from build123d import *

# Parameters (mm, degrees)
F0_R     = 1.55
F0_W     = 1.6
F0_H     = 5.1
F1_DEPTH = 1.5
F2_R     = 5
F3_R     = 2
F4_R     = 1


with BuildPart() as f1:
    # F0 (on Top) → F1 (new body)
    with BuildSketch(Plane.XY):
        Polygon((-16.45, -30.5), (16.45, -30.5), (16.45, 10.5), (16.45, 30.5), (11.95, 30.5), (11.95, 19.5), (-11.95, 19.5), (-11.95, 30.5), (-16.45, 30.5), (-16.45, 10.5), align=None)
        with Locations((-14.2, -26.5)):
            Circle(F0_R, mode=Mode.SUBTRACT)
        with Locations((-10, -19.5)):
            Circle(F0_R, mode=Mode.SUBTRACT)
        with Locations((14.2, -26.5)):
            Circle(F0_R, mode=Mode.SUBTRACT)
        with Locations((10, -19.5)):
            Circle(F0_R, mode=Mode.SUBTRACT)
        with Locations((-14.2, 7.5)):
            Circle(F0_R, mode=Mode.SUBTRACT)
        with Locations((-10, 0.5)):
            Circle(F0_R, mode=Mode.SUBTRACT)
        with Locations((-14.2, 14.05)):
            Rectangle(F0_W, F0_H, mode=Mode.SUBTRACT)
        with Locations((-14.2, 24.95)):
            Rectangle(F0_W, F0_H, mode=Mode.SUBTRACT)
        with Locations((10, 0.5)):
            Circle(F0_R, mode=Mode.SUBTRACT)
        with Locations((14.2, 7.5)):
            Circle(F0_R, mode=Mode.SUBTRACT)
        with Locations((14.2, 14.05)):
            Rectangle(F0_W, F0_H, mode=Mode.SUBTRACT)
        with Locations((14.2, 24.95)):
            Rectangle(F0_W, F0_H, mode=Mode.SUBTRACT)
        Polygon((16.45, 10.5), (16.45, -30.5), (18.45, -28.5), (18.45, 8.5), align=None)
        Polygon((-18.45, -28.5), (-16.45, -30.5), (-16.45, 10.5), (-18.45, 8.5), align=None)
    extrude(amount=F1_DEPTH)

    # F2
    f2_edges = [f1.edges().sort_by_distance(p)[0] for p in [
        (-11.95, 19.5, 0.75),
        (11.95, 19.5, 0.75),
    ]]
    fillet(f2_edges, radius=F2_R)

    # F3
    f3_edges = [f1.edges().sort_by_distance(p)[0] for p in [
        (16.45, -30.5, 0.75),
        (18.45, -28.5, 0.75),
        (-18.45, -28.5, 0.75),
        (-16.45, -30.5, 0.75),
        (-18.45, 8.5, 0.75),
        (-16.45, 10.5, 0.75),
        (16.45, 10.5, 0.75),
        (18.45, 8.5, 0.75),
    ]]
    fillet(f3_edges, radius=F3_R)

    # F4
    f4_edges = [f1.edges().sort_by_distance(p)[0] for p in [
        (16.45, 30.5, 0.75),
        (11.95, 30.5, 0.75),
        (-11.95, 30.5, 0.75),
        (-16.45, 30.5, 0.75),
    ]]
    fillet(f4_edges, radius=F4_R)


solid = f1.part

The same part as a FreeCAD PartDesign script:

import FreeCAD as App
import Part
import Sketcher


def edges_at(feature, points):
    """Names of the edges that pass closest to the given points."""
    edges = feature.Shape.Edges
    near = lambda p: min(range(len(edges)), key=lambda i: edges[i].distToShape(Part.Vertex(*p))[0])
    return sorted({f"Edge{near(p) + 1}" for p in points})

doc = App.newDocument("Part")
body = doc.addObject("PartDesign::Body", "Body")

# Sketch on XY plane
sketch1 = body.newObject("Sketcher::SketchObject", "Sketch")
sketch1.AttachmentSupport = (doc.getObject("XY_Plane"), [""])
sketch1.MapMode = "FlatFace"
sketch1.addGeometry(Part.LineSegment(App.Vector(-16.4, -30.5, 0), App.Vector(16.4, -30.5, 0)), False)
sketch1.addGeometry(Part.LineSegment(App.Vector(16.4, -30.5, 0), App.Vector(18.4, -28.5, 0)), False)
sketch1.addGeometry(Part.LineSegment(App.Vector(18.4, -28.5, 0), App.Vector(18.4, 8.5, 0)), False)
sketch1.addGeometry(Part.LineSegment(App.Vector(18.4, 8.5, 0), App.Vector(16.4, 10.5, 0)), False)
sketch1.addGeometry(Part.LineSegment(App.Vector(16.4, 10.5, 0), App.Vector(16.4, 30.5, 0)), False)
sketch1.addGeometry(Part.LineSegment(App.Vector(16.4, 30.5, 0), App.Vector(11.9, 30.5, 0)), False)
sketch1.addGeometry(Part.LineSegment(App.Vector(11.9, 30.5, 0), App.Vector(11.9, 19.5, 0)), False)
sketch1.addGeometry(Part.LineSegment(App.Vector(11.9, 19.5, 0), App.Vector(-11.9, 19.5, 0)), False)
sketch1.addGeometry(Part.LineSegment(App.Vector(-11.9, 19.5, 0), App.Vector(-11.9, 30.5, 0)), False)
sketch1.addGeometry(Part.LineSegment(App.Vector(-11.9, 30.5, 0), App.Vector(-16.4, 30.5, 0)), False)
sketch1.addGeometry(Part.LineSegment(App.Vector(-16.4, 30.5, 0), App.Vector(-16.4, 10.5, 0)), False)
sketch1.addGeometry(Part.LineSegment(App.Vector(-16.4, 10.5, 0), App.Vector(-18.4, 8.5, 0)), False)
sketch1.addGeometry(Part.LineSegment(App.Vector(-18.4, 8.5, 0), App.Vector(-18.4, -28.5, 0)), False)
sketch1.addGeometry(Part.LineSegment(App.Vector(-18.4, -28.5, 0), App.Vector(-16.4, -30.5, 0)), False)
sketch1.addGeometry(Part.Circle(App.Vector(-14.2, -26.5, 0), App.Vector(0, 0, 1), 1.6), False)
sketch1.addGeometry(Part.Circle(App.Vector(-10, -19.5, 0), App.Vector(0, 0, 1), 1.6), False)
sketch1.addGeometry(Part.Circle(App.Vector(14.2, -26.5, 0), App.Vector(0, 0, 1), 1.6), False)
sketch1.addGeometry(Part.Circle(App.Vector(10, -19.5, 0), App.Vector(0, 0, 1), 1.6), False)
sketch1.addGeometry(Part.Circle(App.Vector(-10, 0.5, 0), App.Vector(0, 0, 1), 1.6), False)
sketch1.addGeometry(Part.Circle(App.Vector(-14.2, 7.5, 0), App.Vector(0, 0, 1), 1.6), False)
sketch1.addGeometry(Part.LineSegment(App.Vector(-13.4, 11.5, 0), App.Vector(-15, 11.5, 0)), False)
sketch1.addGeometry(Part.LineSegment(App.Vector(-15, 11.5, 0), App.Vector(-15, 16.6, 0)), False)
sketch1.addGeometry(Part.LineSegment(App.Vector(-15, 16.6, 0), App.Vector(-13.4, 16.6, 0)), False)
sketch1.addGeometry(Part.LineSegment(App.Vector(-13.4, 16.6, 0), App.Vector(-13.4, 11.5, 0)), False)
sketch1.addGeometry(Part.LineSegment(App.Vector(-13.4, 22.4, 0), App.Vector(-15, 22.4, 0)), False)
sketch1.addGeometry(Part.LineSegment(App.Vector(-15, 22.4, 0), App.Vector(-15, 27.5, 0)), False)
sketch1.addGeometry(Part.LineSegment(App.Vector(-15, 27.5, 0), App.Vector(-13.4, 27.5, 0)), False)
sketch1.addGeometry(Part.LineSegment(App.Vector(-13.4, 27.5, 0), App.Vector(-13.4, 22.4, 0)), False)
sketch1.addGeometry(Part.Circle(App.Vector(10, 0.5, 0), App.Vector(0, 0, 1), 1.6), False)
sketch1.addGeometry(Part.Circle(App.Vector(14.2, 7.5, 0), App.Vector(0, 0, 1), 1.6), False)
sketch1.addGeometry(Part.LineSegment(App.Vector(15, 11.5, 0), App.Vector(13.4, 11.5, 0)), False)
sketch1.addGeometry(Part.LineSegment(App.Vector(13.4, 11.5, 0), App.Vector(13.4, 16.6, 0)), False)
sketch1.addGeometry(Part.LineSegment(App.Vector(13.4, 16.6, 0), App.Vector(15, 16.6, 0)), False)
sketch1.addGeometry(Part.LineSegment(App.Vector(15, 16.6, 0), App.Vector(15, 11.5, 0)), False)
sketch1.addGeometry(Part.LineSegment(App.Vector(15, 22.4, 0), App.Vector(13.4, 22.4, 0)), False)
sketch1.addGeometry(Part.LineSegment(App.Vector(13.4, 22.4, 0), App.Vector(13.4, 27.5, 0)), False)
sketch1.addGeometry(Part.LineSegment(App.Vector(13.4, 27.5, 0), App.Vector(15, 27.5, 0)), False)
sketch1.addGeometry(Part.LineSegment(App.Vector(15, 27.5, 0), App.Vector(15, 22.4, 0)), False)
sketch1.addConstraint(Sketcher.Constraint("Coincident", 0, 2, 1, 1))
sketch1.addConstraint(Sketcher.Constraint("Coincident", 1, 2, 2, 1))
sketch1.addConstraint(Sketcher.Constraint("Coincident", 2, 2, 3, 1))
sketch1.addConstraint(Sketcher.Constraint("Coincident", 3, 2, 4, 1))
sketch1.addConstraint(Sketcher.Constraint("Coincident", 4, 2, 5, 1))
sketch1.addConstraint(Sketcher.Constraint("Coincident", 5, 2, 6, 1))
sketch1.addConstraint(Sketcher.Constraint("Coincident", 6, 2, 7, 1))
sketch1.addConstraint(Sketcher.Constraint("Coincident", 7, 2, 8, 1))
sketch1.addConstraint(Sketcher.Constraint("Coincident", 8, 2, 9, 1))
sketch1.addConstraint(Sketcher.Constraint("Coincident", 9, 2, 10, 1))
sketch1.addConstraint(Sketcher.Constraint("Coincident", 10, 2, 11, 1))
sketch1.addConstraint(Sketcher.Constraint("Coincident", 11, 2, 12, 1))
sketch1.addConstraint(Sketcher.Constraint("Coincident", 12, 2, 13, 1))
sketch1.addConstraint(Sketcher.Constraint("Coincident", 13, 2, 0, 1))
sketch1.addConstraint(Sketcher.Constraint("Coincident", 20, 2, 21, 1))
sketch1.addConstraint(Sketcher.Constraint("Coincident", 21, 2, 22, 1))
sketch1.addConstraint(Sketcher.Constraint("Coincident", 22, 2, 23, 1))
sketch1.addConstraint(Sketcher.Constraint("Coincident", 23, 2, 20, 1))
sketch1.addConstraint(Sketcher.Constraint("Coincident", 24, 2, 25, 1))
sketch1.addConstraint(Sketcher.Constraint("Coincident", 25, 2, 26, 1))
sketch1.addConstraint(Sketcher.Constraint("Coincident", 26, 2, 27, 1))
sketch1.addConstraint(Sketcher.Constraint("Coincident", 27, 2, 24, 1))
sketch1.addConstraint(Sketcher.Constraint("Coincident", 30, 2, 31, 1))
sketch1.addConstraint(Sketcher.Constraint("Coincident", 31, 2, 32, 1))
sketch1.addConstraint(Sketcher.Constraint("Coincident", 32, 2, 33, 1))
sketch1.addConstraint(Sketcher.Constraint("Coincident", 33, 2, 30, 1))
sketch1.addConstraint(Sketcher.Constraint("Coincident", 34, 2, 35, 1))
sketch1.addConstraint(Sketcher.Constraint("Coincident", 35, 2, 36, 1))
sketch1.addConstraint(Sketcher.Constraint("Coincident", 36, 2, 37, 1))
sketch1.addConstraint(Sketcher.Constraint("Coincident", 37, 2, 34, 1))
sketch1.addConstraint(Sketcher.Constraint("Horizontal", 0))
sketch1.addConstraint(Sketcher.Constraint("Vertical", 2))
sketch1.addConstraint(Sketcher.Constraint("Vertical", 4))
sketch1.addConstraint(Sketcher.Constraint("Horizontal", 5))
sketch1.addConstraint(Sketcher.Constraint("Vertical", 6))
sketch1.addConstraint(Sketcher.Constraint("Horizontal", 7))
sketch1.addConstraint(Sketcher.Constraint("Vertical", 8))
sketch1.addConstraint(Sketcher.Constraint("Horizontal", 9))
sketch1.addConstraint(Sketcher.Constraint("Vertical", 10))
sketch1.addConstraint(Sketcher.Constraint("Vertical", 12))
sketch1.addConstraint(Sketcher.Constraint("Horizontal", 20))
sketch1.addConstraint(Sketcher.Constraint("Vertical", 21))
sketch1.addConstraint(Sketcher.Constraint("Horizontal", 22))
sketch1.addConstraint(Sketcher.Constraint("Vertical", 23))
sketch1.addConstraint(Sketcher.Constraint("Horizontal", 24))
sketch1.addConstraint(Sketcher.Constraint("Vertical", 25))
sketch1.addConstraint(Sketcher.Constraint("Horizontal", 26))
sketch1.addConstraint(Sketcher.Constraint("Vertical", 27))
sketch1.addConstraint(Sketcher.Constraint("Horizontal", 30))
sketch1.addConstraint(Sketcher.Constraint("Vertical", 31))
sketch1.addConstraint(Sketcher.Constraint("Horizontal", 32))
sketch1.addConstraint(Sketcher.Constraint("Vertical", 33))
sketch1.addConstraint(Sketcher.Constraint("Horizontal", 34))
sketch1.addConstraint(Sketcher.Constraint("Vertical", 35))
sketch1.addConstraint(Sketcher.Constraint("Horizontal", 36))
sketch1.addConstraint(Sketcher.Constraint("Vertical", 37))
sketch1.addConstraint(Sketcher.Constraint("Equal", 14, 15))
sketch1.addConstraint(Sketcher.Constraint("Equal", 15, 16))
sketch1.addConstraint(Sketcher.Constraint("Equal", 16, 17))
sketch1.addConstraint(Sketcher.Constraint("Equal", 17, 18))
sketch1.addConstraint(Sketcher.Constraint("Equal", 18, 19))
sketch1.addConstraint(Sketcher.Constraint("Equal", 19, 28))
sketch1.addConstraint(Sketcher.Constraint("Equal", 28, 29))
sketch1.addConstraint(Sketcher.Constraint("Symmetric", 0, 2, 9, 2, -1, 1))
sketch1.addConstraint(Sketcher.Constraint("Symmetric", 4, 2, 13, 2, -1, 1))
sketch1.addConstraint(Sketcher.Constraint("Symmetric", 14, 3, 16, 3, -2))
sketch1.addConstraint(Sketcher.Constraint("Symmetric", 15, 3, 17, 3, -2))
sketch1.addConstraint(Sketcher.Constraint("Symmetric", 18, 3, 28, 3, -2))
sketch1.addConstraint(Sketcher.Constraint("Symmetric", 19, 3, 29, 3, -2))
sketch1.addConstraint(Sketcher.Constraint("Symmetric", 3, 2, 10, 2, -2))
sketch1.addConstraint(Sketcher.Constraint("Symmetric", 2, 2, 11, 2, -2))
sketch1.addConstraint(Sketcher.Constraint("Symmetric", 23, 2, 30, 2, -2))
sketch1.addConstraint(Sketcher.Constraint("Symmetric", 21, 2, 32, 2, -2))
sketch1.addConstraint(Sketcher.Constraint("Symmetric", 27, 2, 34, 2, -2))
sketch1.addConstraint(Sketcher.Constraint("Symmetric", 25, 2, 36, 2, -2))
sketch1.addConstraint(Sketcher.Constraint("Perpendicular", 1, 3))
sketch1.addConstraint(Sketcher.Constraint("Perpendicular", 3, 11))
sketch1.addConstraint(Sketcher.Constraint("Perpendicular", 11, 13))
sketch1.addConstraint(Sketcher.Constraint("Vertical", 15, 3, 18, 3))
sketch1.addConstraint(Sketcher.Constraint("Vertical", 14, 3, 19, 3))
sketch1.addConstraint(Sketcher.Constraint("Vertical", 21, 2, 24, 2))
sketch1.addConstraint(Sketcher.Constraint("Vertical", 23, 2, 26, 2))
sketch1.addConstraint(Sketcher.Constraint("Equal", 5, 9))
sketch1.addConstraint(Sketcher.Constraint("Equal", 23, 25))
sketch1.addConstraint(Sketcher.Constraint("Diameter", 14, 3.1))
sketch1.addConstraint(Sketcher.Constraint("DistanceY", 2, 1, 2, 2, 37.0))
sketch1.addConstraint(Sketcher.Constraint("DistanceY", 4, 1, 4, 2, 20.0))
sketch1.addConstraint(Sketcher.Constraint("DistanceY", 6, 2, 6, 1, 11.0))
sketch1.addConstraint(Sketcher.Constraint("DistanceX", 0, 1, 0, 2, 32.9))
sketch1.addConstraint(Sketcher.Constraint("DistanceX", 5, 2, 5, 1, 4.5))
sketch1.addConstraint(Sketcher.Constraint("DistanceX", 20, 2, 20, 1, 1.6))
sketch1.addConstraint(Sketcher.Constraint("DistanceY", 21, 1, 21, 2, 5.1))
sketch1.addConstraint(Sketcher.Constraint("DistanceX", 15, 3, -1, 1, 10.0))
sketch1.addConstraint(Sketcher.Constraint("DistanceX", 20, 2, -1, 1, 15.0))
sketch1.addConstraint(Sketcher.Constraint("DistanceY", 14, 3, 15, 3, 7.0))
sketch1.addConstraint(Sketcher.Constraint("DistanceY", 15, 3, 18, 3, 20.0))
sketch1.addConstraint(Sketcher.Constraint("DistanceY", 18, 3, 19, 3, 7.0))
sketch1.addConstraint(Sketcher.Constraint("DistanceY", 0, 2, 16, 3, 4.0))
sketch1.addConstraint(Sketcher.Constraint("DistanceX", 0, 2, 1, 2, 2.0))
sketch1.addConstraint(Sketcher.Constraint("DistanceY", 10, 2, 20, 2, 1.0))
sketch1.addConstraint(Sketcher.Constraint("DistanceY", 25, 2, 9, 2, 3.0))
sketch1.addConstraint(Sketcher.Constraint("DistanceX", 14, 3, -1, 1, 14.2))
pad1 = body.newObject("PartDesign::Pad", "Pad")
pad1.Profile = sketch1
pad1.Length = 1.5
doc.recompute()

fillet = body.newObject("PartDesign::Fillet", "Fillet")
fillet.Base = (pad1, edges_at(pad1, [(-11.95, 19.5, 0.75), (11.95, 19.5, 0.75)]))
fillet.Radius = 5
doc.recompute()

fillet2 = body.newObject("PartDesign::Fillet", "Fillet001")
fillet2.Base = (fillet, edges_at(fillet, [
    (16.45, -30.5, 0.75),
    (18.45, -28.5, 0.75),
    (-18.45, -28.5, 0.75),
    (-16.45, -30.5, 0.75),
    (-18.45, 8.5, 0.75),
    (-16.45, 10.5, 0.75),
    (16.45, 10.5, 0.75),
    (18.45, 8.5, 0.75),
]))
fillet2.Radius = 2
doc.recompute()

fillet3 = body.newObject("PartDesign::Fillet", "Fillet002")
fillet3.Base = (fillet2, edges_at(fillet2, [
    (16.45, 30.5, 0.75),
    (11.95, 30.5, 0.75),
    (-11.95, 30.5, 0.75),
    (-16.45, 30.5, 0.75),
]))
fillet3.Radius = 1

doc.recompute()
